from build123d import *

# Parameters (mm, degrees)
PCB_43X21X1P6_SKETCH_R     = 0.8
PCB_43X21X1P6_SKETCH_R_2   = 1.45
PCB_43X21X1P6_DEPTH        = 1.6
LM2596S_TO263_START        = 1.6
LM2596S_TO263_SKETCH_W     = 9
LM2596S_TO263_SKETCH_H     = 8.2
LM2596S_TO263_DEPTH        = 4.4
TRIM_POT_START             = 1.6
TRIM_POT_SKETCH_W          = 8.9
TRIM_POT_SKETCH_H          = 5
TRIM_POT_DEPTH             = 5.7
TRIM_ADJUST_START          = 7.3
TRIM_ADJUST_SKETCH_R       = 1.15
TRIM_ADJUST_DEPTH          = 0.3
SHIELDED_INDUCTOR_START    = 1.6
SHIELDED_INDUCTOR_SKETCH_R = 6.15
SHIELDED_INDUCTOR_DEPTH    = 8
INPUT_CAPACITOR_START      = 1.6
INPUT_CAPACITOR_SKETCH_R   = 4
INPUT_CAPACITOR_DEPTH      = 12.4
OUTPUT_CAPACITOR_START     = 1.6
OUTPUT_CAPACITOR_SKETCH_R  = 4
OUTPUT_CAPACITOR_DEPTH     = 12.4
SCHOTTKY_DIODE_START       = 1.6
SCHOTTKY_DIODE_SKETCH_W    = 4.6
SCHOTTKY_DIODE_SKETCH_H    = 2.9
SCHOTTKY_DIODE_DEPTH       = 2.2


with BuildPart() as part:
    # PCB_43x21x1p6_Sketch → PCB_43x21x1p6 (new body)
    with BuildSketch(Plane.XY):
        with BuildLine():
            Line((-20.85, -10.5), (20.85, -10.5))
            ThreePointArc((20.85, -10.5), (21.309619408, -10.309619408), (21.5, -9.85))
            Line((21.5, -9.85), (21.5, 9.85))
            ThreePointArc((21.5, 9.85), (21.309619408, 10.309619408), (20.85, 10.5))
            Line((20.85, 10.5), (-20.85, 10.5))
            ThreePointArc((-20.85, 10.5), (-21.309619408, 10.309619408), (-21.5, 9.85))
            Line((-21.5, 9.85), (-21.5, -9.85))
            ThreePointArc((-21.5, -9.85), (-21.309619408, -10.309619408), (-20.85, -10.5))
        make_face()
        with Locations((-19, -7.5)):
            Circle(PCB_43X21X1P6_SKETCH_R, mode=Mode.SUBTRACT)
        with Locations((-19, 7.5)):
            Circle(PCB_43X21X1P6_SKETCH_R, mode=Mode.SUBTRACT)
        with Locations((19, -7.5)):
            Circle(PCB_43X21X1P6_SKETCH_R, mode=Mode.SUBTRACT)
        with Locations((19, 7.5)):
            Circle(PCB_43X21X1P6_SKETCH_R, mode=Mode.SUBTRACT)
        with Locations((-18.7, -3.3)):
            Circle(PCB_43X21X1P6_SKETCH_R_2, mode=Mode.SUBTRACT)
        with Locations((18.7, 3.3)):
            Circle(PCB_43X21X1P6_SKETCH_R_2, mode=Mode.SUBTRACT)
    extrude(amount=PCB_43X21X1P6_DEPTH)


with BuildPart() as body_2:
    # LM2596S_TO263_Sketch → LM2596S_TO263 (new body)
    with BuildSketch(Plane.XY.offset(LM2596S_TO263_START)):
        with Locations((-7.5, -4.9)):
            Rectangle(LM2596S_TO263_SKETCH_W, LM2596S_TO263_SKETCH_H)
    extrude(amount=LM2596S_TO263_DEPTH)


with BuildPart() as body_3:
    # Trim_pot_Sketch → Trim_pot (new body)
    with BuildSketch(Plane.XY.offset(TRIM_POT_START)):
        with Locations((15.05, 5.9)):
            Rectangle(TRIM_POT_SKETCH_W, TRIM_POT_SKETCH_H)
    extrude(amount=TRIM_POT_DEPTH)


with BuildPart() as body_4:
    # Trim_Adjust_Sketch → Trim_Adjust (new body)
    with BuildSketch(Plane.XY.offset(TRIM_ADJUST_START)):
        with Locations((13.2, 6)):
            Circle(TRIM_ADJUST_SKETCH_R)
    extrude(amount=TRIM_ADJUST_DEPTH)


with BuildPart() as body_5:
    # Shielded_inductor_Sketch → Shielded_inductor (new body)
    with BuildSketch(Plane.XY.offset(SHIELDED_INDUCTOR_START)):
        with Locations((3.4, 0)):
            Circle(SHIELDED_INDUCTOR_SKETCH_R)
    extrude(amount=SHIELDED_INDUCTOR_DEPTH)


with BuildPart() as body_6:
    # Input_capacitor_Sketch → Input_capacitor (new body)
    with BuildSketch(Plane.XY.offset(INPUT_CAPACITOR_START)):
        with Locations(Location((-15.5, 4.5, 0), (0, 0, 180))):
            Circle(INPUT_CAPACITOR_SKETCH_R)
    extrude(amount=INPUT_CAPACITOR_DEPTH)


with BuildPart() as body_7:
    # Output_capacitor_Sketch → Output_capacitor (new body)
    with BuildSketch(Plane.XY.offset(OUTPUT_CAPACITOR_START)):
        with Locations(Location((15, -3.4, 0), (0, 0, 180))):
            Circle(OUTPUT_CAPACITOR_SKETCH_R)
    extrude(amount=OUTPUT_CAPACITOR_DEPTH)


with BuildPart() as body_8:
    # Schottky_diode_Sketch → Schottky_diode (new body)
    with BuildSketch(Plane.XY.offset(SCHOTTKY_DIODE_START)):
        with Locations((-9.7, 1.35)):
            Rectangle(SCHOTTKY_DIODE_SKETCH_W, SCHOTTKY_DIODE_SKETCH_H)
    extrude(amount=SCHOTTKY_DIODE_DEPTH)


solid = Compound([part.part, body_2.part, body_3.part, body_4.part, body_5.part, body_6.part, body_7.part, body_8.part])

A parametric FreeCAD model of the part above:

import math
import FreeCAD as App
import Part
import Sketcher

V = App.Vector


def add_polygon(sketch, points):
    """Adds a closed chain of lines whose ends are joined by coincident constraints."""
    first, n = sketch.GeometryCount, len(points)
    for a, b in zip(points, points[1:] + points[:1]):
        sketch.addGeometry(Part.LineSegment(App.Vector(*a, 0), App.Vector(*b, 0)), False)
    for i in range(n):
        sketch.addConstraint(Sketcher.Constraint("Coincident", first + i, 2, first + (i + 1) % n, 1))

doc = App.newDocument("Part")
params = doc.addObject("Spreadsheet::Sheet", "Params")
for row, (alias, value) in enumerate([
    ("sketch1_diameter", "1.6 mm"),
    ("sketch1_diameter2", "2.9 mm"),
    ("sketch1_radius", "0.65 mm"),
    ("sketch1_width", "41.7 mm"),
    ("sketch1_height", "19.7 mm"),
    ("pad1_length", "1.6 mm"),
    ("sketch2_width", "9 mm"),
    ("sketch2_height", "8.2 mm"),
    ("pad2_length", "4.4 mm"),
    ("sketch3_height", "5 mm"),
    ("sketch3_width", "8.9 mm"),
    ("pad3_length", "5.7 mm"),
    ("sketch4_diameter", "2.3 mm"),
    ("pad4_length", "0.3 mm"),
    ("sketch5_diameter", "12.3 mm"),
    ("pad5_length", "8 mm"),
    ("sketch6_diameter", "8 mm"),
    ("pad6_length", "12.4 mm"),
    ("sketch7_diameter", "8 mm"),
    ("pad7_length", "12.4 mm"),
    ("sketch8_width", "4.6 mm"),
    ("sketch8_height", "2.9 mm"),
    ("pad8_length", "2.2 mm"),
], start=1):
    params.set(f"A{row}", alias)
    params.set(f"B{row}", "=" + value)
    params.setAlias(f"B{row}", alias)

body = doc.addObject("PartDesign::Body", "Body")

# Sketch on XY plane
sketch1 = body.newObject("Sketcher::SketchObject", "Sketch")
sketch1.AttachmentSupport = (doc.getObject("XY_Plane"), [""])
sketch1.MapMode = "FlatFace"
sketch1.addGeometry([
    Part.LineSegment(V(-20.9, -10.5, 0), V(20.9, -10.5, 0)),  # 0
    Part.ArcOfCircle(Part.Circle(V(20.9, -9.9, 0), V(0, 0, 1), 0.6), math.radians(-90), math.radians(0)),  # 1
    Part.LineSegment(V(21.5, -9.8, 0), V(21.5, 9.8, 0)),  # 2
    Part.ArcOfCircle(Part.Circle(V(20.9, 9.9, 0), V(0, 0, 1), 0.6), math.radians(0), math.radians(90)),  # 3
    Part.LineSegment(V(20.9, 10.5, 0), V(-20.9, 10.5, 0)),  # 4
    Part.ArcOfCircle(Part.Circle(V(-20.9, 9.9, 0), V(0, 0, 1), 0.6), math.radians(90), math.radians(180)),  # 5
    Part.LineSegment(V(-21.5, 9.8, 0), V(-21.5, -9.8, 0)),  # 6
    Part.ArcOfCircle(Part.Circle(V(-20.9, -9.9, 0), V(0, 0, 1), 0.6), math.radians(180), math.radians(270)),  # 7
    Part.Circle(V(-19, -7.5, 0), V(0, 0, 1), 0.8),  # 8
    Part.Circle(V(-18.7, -3.3, 0), V(0, 0, 1), 1.4),  # 9
    Part.Circle(V(19, -7.5, 0), V(0, 0, 1), 0.8),  # 10
    Part.Circle(V(-19, 7.5, 0), V(0, 0, 1), 0.8),  # 11
    Part.Circle(V(18.7, 3.3, 0), V(0, 0, 1), 1.4),  # 12
    Part.Circle(V(19, 7.5, 0), V(0, 0, 1), 0.8),  # 13
], False)
sketch1.addConstraint([
    Sketcher.Constraint("Tangent", 0, 2, 1, 1),
    Sketcher.Constraint("Tangent", 1, 2, 2, 1),
    Sketcher.Constraint("Tangent", 2, 2, 3, 1),
    Sketcher.Constraint("Tangent", 3, 2, 4, 1),
    Sketcher.Constraint("Tangent", 4, 2, 5, 1),
    Sketcher.Constraint("Tangent", 5, 2, 6, 1),
    Sketcher.Constraint("Tangent", 6, 2, 7, 1),
    Sketcher.Constraint("Tangent", 7, 2, 0, 1),
    Sketcher.Constraint("Horizontal", 0),
    Sketcher.Constraint("Vertical", 2),
    Sketcher.Constraint("Horizontal", 4),
    Sketcher.Constraint("Vertical", 6),
    Sketcher.Constraint("Equal", 1, 3),
    Sketcher.Constraint("Equal", 3, 5),
    Sketcher.Constraint("Equal", 5, 7),
    Sketcher.Constraint("Equal", 8, 10),
    Sketcher.Constraint("Equal", 10, 11),
    Sketcher.Constraint("Equal", 9, 12),
    Sketcher.Constraint("Equal", 11, 13),
    Sketcher.Constraint("Symmetric", 1, 3, 5, 3, -1, 1),
    Sketcher.Constraint("Symmetric", 10, 3, 11, 3, -1, 1),
    Sketcher.Constraint("Symmetric", 9, 3, 12, 3, -1, 1),
    Sketcher.Constraint("Symmetric", 8, 3, 13, 3, -1, 1),
    Sketcher.Constraint("Symmetric", 8, 3, 10, 3, -2),
    Sketcher.Constraint("Diameter", 8, 1.6),
    Sketcher.Constraint("Diameter", 9, 2.9),
    Sketcher.Constraint("Radius", 1, 0.65),
    Sketcher.Constraint("DistanceX", 0, 1, 0, 2, 41.7),
    Sketcher.Constraint("DistanceY", 2, 1, 2, 2, 19.7),
    Sketcher.Constraint("DistanceX", 8, 3, -1, 1, 19.0),
    Sketcher.Constraint("DistanceY", 8, 3, 11, 3, 15.0),
    Sketcher.Constraint("DistanceX", 9, 3, -1, 1, 18.7),
    Sketcher.Constraint("DistanceY", 9, 3, -1, 1, 3.3),
])
sketch1.setExpression("Constraints[24]", "Params.sketch1_diameter")
sketch1.setExpression("Constraints[25]", "Params.sketch1_diameter2")
sketch1.setExpression("Constraints[26]", "Params.sketch1_radius")
sketch1.setExpression("Constraints[27]", "Params.sketch1_width")
sketch1.setExpression("Constraints[28]", "Params.sketch1_height")
pad1 = body.newObject("PartDesign::Pad", "Pad")
pad1.Profile = sketch1
pad1.setExpression("Length", "Params.pad1_length")
body2 = doc.addObject("PartDesign::Body", "Body001")

# Sketch on XY plane
sketch2 = body2.newObject("Sketcher::SketchObject", "Sketch001")
sketch2.AttachmentSupport = (doc.getObject("XY_Plane001"), [""])
sketch2.MapMode = "FlatFace"
sketch2.AttachmentOffset = App.Placement(V(0, 0, 1.6), App.Rotation())
add_polygon(sketch2, [(-12, -1), (-12, -9), (-3, -9), (-3, -1)])  # lines 0-3
sketch2.addConstraint([
    Sketcher.Constraint("Vertical", 0),
    Sketcher.Constraint("Horizontal", 1),
    Sketcher.Constraint("Vertical", 2),
    Sketcher.Constraint("Horizontal", 3),
    Sketcher.Constraint("DistanceX", 1, 1, 1, 2, 9.0),
    Sketcher.Constraint("DistanceY", 0, 2, 0, 1, 8.2),
    Sketcher.Constraint("DistanceX", 0, 2, -1, 1, 12.0),
    Sketcher.Constraint("DistanceY", 0, 2, -1, 1, 9.0),
])
sketch2.setExpression("Constraints[8]", "Params.sketch2_width")
sketch2.setExpression("Constraints[9]", "Params.sketch2_height")
pad2 = body2.newObject("PartDesign::Pad", "Pad001")
pad2.Profile = sketch2
pad2.setExpression("Length", "Params.pad2_length")
body3 = doc.addObject("PartDesign::Body", "Body002")

# Sketch on XY plane
sketch3 = body3.newObject("Sketcher::SketchObject", "Sketch002")
sketch3.AttachmentSupport = (doc.getObject("XY_Plane002"), [""])
sketch3.MapMode = "FlatFace"
sketch3.AttachmentOffset = App.Placement(V(0, 0, 1.6), App.Rotation())
add_polygon(sketch3, [(11, 8), (11, 3), (20, 3), (20, 8)])  # lines 0-3
sketch3.addConstraint([
    Sketcher.Constraint("Vertical", 0),
    Sketcher.Constraint("Horizontal", 1),
    Sketcher.Constraint("Vertical", 2),
    Sketcher.Constraint("Horizontal", 3),
    Sketcher.Constraint("DistanceY", 0, 2, 0, 1, 5.0),
    Sketcher.Constraint("DistanceX", 1, 1, 1, 2, 8.9),
    Sketcher.Constraint("DistanceX", -1, 1, 0, 2, 10.6),
    Sketcher.Constraint("DistanceY", -1, 1, 0, 2, 3.4),
])
sketch3.setExpression("Constraints[8]", "Params.sketch3_height")
sketch3.setExpression("Constraints[9]", "Params.sketch3_width")
pad3 = body3.newObject("PartDesign::Pad", "Pad002")
pad3.Profile = sketch3
pad3.setExpression("Length", "Params.pad3_length")
body4 = doc.addObject("PartDesign::Body", "Body003")

# Sketch on XY plane
sketch4 = body4.newObject("Sketcher::SketchObject", "Sketch003")
sketch4.AttachmentSupport = (doc.getObject("XY_Plane003"), [""])
sketch4.MapMode = "FlatFace"
sketch4.AttachmentOffset = App.Placement(V(0, 0, 7.3), App.Rotation())
sketch4.addGeometry(Part.Circle(V(13.2, 6, 0), V(0, 0, 1), 1.1), False)
sketch4.addConstraint([
    Sketcher.Constraint("Diameter", 0, 2.3),
    Sketcher.Constraint("DistanceY", -1, 1, 0, 3, 6.0),
    Sketcher.Constraint("DistanceX", -1, 1, 0, 3, 13.2),
])
sketch4.setExpression("Constraints[0]", "Params.sketch4_diameter")
pad4 = body4.newObject("PartDesign::Pad", "Pad003")
pad4.Profile = sketch4
pad4.setExpression("Length", "Params.pad4_length")
body5 = doc.addObject("PartDesign::Body", "Body004")

# Sketch on XY plane
sketch5 = body5.newObject("Sketcher::SketchObject", "Sketch004")
sketch5.AttachmentSupport = (doc.getObject("XY_Plane004"), [""])
sketch5.MapMode = "FlatFace"
sketch5.AttachmentOffset = App.Placement(V(0, 0, 1.6), App.Rotation())
sketch5.addGeometry(Part.Circle(V(3, 0, 0), V(0, 0, 1), 6), False)
sketch5.addConstraint([
    Sketcher.Constraint("PointOnObject", 0, 3, -1),
    Sketcher.Constraint("Diameter", 0, 12.3),
    Sketcher.Constraint("DistanceX", -1, 1, 0, 3, 3.4),
])
sketch5.setExpression("Constraints[1]", "Params.sketch5_diameter")
pad5 = body5.newObject("PartDesign::Pad", "Pad004")
pad5.Profile = sketch5
pad5.setExpression("Length", "Params.pad5_length")
body6 = doc.addObject("PartDesign::Body", "Body005")

# Sketch on XY plane
sketch6 = body6.newObject("Sketcher::SketchObject", "Sketch005")
sketch6.AttachmentSupport = (doc.getObject("XY_Plane005"), [""])
sketch6.MapMode = "FlatFace"
sketch6.AttachmentOffset = App.Placement(V(0, 0, 1.6), App.Rotation())
sketch6.addGeometry(Part.Circle(V(-15.5, 4.5, 0), V(0, 0, 1), 4), False)
sketch6.addConstraint([
    Sketcher.Constraint("Diameter", 0, 8.0),
    Sketcher.Constraint("DistanceX", 0, 3, -1, 1, 15.5),
    Sketcher.Constraint("DistanceY", -1, 1, 0, 3, 4.5),
])
sketch6.setExpression("Constraints[0]", "Params.sketch6_diameter")
pad6 = body6.newObject("PartDesign::Pad", "Pad005")
pad6.Profile = sketch6
pad6.setExpression("Length", "Params.pad6_length")
body7 = doc.addObject("PartDesign::Body", "Body006")

# Sketch on XY plane
sketch7 = body7.newObject("Sketcher::SketchObject", "Sketch006")
sketch7.AttachmentSupport = (doc.getObject("XY_Plane006"), [""])
sketch7.MapMode = "FlatFace"
sketch7.AttachmentOffset = App.Placement(V(0, 0, 1.6), App.Rotation())
sketch7.addGeometry(Part.Circle(V(15, -3.4, 0), V(0, 0, 1), 4), False)
sketch7.addConstraint([
    Sketcher.Constraint("Diameter", 0, 8.0),
    Sketcher.Constraint("DistanceX", -1, 1, 0, 3, 15.0),
    Sketcher.Constraint("DistanceY", 0, 3, -1, 1, 3.4),
])
sketch7.setExpression("Constraints[0]", "Params.sketch7_diameter")
pad7 = body7.newObject("PartDesign::Pad", "Pad006")
pad7.Profile = sketch7
pad7.setExpression("Length", "Params.pad7_length")
body8 = doc.addObject("PartDesign::Body", "Body007")

# Sketch on XY plane
sketch8 = body8.newObject("Sketcher::SketchObject", "Sketch007")
sketch8.AttachmentSupport = (doc.getObject("XY_Plane007"), [""])
sketch8.MapMode = "FlatFace"
sketch8.AttachmentOffset = App.Placement(V(0, 0, 1.6), App.Rotation())
add_polygon(sketch8, [(-12, 2.8), (-12, -0.1), (-7.4, -0.1), (-7.4, 2.8)])  # lines 0-3
sketch8.addConstraint([
    Sketcher.Constraint("Vertical", 0),
    Sketcher.Constraint("Horizontal", 1),
    Sketcher.Constraint("Vertical", 2),
    Sketcher.Constraint("Horizontal", 3),
    Sketcher.Constraint("DistanceX", 1, 1, 1, 2, 4.6),
    Sketcher.Constraint("DistanceY", 0, 2, 0, 1, 2.9),
    Sketcher.Constraint("DistanceX", 0, 2, -1, 1, 12.0),
    Sketcher.Constraint("DistanceY", 0, 2, -1, 1, 0.1),
])
sketch8.setExpression("Constraints[8]", "Params.sketch8_width")
sketch8.setExpression("Constraints[9]", "Params.sketch8_height")
pad8 = body8.newObject("PartDesign::Pad", "Pad007")
pad8.Profile = sketch8
pad8.setExpression("Length", "Params.pad8_length")

doc.recompute()
